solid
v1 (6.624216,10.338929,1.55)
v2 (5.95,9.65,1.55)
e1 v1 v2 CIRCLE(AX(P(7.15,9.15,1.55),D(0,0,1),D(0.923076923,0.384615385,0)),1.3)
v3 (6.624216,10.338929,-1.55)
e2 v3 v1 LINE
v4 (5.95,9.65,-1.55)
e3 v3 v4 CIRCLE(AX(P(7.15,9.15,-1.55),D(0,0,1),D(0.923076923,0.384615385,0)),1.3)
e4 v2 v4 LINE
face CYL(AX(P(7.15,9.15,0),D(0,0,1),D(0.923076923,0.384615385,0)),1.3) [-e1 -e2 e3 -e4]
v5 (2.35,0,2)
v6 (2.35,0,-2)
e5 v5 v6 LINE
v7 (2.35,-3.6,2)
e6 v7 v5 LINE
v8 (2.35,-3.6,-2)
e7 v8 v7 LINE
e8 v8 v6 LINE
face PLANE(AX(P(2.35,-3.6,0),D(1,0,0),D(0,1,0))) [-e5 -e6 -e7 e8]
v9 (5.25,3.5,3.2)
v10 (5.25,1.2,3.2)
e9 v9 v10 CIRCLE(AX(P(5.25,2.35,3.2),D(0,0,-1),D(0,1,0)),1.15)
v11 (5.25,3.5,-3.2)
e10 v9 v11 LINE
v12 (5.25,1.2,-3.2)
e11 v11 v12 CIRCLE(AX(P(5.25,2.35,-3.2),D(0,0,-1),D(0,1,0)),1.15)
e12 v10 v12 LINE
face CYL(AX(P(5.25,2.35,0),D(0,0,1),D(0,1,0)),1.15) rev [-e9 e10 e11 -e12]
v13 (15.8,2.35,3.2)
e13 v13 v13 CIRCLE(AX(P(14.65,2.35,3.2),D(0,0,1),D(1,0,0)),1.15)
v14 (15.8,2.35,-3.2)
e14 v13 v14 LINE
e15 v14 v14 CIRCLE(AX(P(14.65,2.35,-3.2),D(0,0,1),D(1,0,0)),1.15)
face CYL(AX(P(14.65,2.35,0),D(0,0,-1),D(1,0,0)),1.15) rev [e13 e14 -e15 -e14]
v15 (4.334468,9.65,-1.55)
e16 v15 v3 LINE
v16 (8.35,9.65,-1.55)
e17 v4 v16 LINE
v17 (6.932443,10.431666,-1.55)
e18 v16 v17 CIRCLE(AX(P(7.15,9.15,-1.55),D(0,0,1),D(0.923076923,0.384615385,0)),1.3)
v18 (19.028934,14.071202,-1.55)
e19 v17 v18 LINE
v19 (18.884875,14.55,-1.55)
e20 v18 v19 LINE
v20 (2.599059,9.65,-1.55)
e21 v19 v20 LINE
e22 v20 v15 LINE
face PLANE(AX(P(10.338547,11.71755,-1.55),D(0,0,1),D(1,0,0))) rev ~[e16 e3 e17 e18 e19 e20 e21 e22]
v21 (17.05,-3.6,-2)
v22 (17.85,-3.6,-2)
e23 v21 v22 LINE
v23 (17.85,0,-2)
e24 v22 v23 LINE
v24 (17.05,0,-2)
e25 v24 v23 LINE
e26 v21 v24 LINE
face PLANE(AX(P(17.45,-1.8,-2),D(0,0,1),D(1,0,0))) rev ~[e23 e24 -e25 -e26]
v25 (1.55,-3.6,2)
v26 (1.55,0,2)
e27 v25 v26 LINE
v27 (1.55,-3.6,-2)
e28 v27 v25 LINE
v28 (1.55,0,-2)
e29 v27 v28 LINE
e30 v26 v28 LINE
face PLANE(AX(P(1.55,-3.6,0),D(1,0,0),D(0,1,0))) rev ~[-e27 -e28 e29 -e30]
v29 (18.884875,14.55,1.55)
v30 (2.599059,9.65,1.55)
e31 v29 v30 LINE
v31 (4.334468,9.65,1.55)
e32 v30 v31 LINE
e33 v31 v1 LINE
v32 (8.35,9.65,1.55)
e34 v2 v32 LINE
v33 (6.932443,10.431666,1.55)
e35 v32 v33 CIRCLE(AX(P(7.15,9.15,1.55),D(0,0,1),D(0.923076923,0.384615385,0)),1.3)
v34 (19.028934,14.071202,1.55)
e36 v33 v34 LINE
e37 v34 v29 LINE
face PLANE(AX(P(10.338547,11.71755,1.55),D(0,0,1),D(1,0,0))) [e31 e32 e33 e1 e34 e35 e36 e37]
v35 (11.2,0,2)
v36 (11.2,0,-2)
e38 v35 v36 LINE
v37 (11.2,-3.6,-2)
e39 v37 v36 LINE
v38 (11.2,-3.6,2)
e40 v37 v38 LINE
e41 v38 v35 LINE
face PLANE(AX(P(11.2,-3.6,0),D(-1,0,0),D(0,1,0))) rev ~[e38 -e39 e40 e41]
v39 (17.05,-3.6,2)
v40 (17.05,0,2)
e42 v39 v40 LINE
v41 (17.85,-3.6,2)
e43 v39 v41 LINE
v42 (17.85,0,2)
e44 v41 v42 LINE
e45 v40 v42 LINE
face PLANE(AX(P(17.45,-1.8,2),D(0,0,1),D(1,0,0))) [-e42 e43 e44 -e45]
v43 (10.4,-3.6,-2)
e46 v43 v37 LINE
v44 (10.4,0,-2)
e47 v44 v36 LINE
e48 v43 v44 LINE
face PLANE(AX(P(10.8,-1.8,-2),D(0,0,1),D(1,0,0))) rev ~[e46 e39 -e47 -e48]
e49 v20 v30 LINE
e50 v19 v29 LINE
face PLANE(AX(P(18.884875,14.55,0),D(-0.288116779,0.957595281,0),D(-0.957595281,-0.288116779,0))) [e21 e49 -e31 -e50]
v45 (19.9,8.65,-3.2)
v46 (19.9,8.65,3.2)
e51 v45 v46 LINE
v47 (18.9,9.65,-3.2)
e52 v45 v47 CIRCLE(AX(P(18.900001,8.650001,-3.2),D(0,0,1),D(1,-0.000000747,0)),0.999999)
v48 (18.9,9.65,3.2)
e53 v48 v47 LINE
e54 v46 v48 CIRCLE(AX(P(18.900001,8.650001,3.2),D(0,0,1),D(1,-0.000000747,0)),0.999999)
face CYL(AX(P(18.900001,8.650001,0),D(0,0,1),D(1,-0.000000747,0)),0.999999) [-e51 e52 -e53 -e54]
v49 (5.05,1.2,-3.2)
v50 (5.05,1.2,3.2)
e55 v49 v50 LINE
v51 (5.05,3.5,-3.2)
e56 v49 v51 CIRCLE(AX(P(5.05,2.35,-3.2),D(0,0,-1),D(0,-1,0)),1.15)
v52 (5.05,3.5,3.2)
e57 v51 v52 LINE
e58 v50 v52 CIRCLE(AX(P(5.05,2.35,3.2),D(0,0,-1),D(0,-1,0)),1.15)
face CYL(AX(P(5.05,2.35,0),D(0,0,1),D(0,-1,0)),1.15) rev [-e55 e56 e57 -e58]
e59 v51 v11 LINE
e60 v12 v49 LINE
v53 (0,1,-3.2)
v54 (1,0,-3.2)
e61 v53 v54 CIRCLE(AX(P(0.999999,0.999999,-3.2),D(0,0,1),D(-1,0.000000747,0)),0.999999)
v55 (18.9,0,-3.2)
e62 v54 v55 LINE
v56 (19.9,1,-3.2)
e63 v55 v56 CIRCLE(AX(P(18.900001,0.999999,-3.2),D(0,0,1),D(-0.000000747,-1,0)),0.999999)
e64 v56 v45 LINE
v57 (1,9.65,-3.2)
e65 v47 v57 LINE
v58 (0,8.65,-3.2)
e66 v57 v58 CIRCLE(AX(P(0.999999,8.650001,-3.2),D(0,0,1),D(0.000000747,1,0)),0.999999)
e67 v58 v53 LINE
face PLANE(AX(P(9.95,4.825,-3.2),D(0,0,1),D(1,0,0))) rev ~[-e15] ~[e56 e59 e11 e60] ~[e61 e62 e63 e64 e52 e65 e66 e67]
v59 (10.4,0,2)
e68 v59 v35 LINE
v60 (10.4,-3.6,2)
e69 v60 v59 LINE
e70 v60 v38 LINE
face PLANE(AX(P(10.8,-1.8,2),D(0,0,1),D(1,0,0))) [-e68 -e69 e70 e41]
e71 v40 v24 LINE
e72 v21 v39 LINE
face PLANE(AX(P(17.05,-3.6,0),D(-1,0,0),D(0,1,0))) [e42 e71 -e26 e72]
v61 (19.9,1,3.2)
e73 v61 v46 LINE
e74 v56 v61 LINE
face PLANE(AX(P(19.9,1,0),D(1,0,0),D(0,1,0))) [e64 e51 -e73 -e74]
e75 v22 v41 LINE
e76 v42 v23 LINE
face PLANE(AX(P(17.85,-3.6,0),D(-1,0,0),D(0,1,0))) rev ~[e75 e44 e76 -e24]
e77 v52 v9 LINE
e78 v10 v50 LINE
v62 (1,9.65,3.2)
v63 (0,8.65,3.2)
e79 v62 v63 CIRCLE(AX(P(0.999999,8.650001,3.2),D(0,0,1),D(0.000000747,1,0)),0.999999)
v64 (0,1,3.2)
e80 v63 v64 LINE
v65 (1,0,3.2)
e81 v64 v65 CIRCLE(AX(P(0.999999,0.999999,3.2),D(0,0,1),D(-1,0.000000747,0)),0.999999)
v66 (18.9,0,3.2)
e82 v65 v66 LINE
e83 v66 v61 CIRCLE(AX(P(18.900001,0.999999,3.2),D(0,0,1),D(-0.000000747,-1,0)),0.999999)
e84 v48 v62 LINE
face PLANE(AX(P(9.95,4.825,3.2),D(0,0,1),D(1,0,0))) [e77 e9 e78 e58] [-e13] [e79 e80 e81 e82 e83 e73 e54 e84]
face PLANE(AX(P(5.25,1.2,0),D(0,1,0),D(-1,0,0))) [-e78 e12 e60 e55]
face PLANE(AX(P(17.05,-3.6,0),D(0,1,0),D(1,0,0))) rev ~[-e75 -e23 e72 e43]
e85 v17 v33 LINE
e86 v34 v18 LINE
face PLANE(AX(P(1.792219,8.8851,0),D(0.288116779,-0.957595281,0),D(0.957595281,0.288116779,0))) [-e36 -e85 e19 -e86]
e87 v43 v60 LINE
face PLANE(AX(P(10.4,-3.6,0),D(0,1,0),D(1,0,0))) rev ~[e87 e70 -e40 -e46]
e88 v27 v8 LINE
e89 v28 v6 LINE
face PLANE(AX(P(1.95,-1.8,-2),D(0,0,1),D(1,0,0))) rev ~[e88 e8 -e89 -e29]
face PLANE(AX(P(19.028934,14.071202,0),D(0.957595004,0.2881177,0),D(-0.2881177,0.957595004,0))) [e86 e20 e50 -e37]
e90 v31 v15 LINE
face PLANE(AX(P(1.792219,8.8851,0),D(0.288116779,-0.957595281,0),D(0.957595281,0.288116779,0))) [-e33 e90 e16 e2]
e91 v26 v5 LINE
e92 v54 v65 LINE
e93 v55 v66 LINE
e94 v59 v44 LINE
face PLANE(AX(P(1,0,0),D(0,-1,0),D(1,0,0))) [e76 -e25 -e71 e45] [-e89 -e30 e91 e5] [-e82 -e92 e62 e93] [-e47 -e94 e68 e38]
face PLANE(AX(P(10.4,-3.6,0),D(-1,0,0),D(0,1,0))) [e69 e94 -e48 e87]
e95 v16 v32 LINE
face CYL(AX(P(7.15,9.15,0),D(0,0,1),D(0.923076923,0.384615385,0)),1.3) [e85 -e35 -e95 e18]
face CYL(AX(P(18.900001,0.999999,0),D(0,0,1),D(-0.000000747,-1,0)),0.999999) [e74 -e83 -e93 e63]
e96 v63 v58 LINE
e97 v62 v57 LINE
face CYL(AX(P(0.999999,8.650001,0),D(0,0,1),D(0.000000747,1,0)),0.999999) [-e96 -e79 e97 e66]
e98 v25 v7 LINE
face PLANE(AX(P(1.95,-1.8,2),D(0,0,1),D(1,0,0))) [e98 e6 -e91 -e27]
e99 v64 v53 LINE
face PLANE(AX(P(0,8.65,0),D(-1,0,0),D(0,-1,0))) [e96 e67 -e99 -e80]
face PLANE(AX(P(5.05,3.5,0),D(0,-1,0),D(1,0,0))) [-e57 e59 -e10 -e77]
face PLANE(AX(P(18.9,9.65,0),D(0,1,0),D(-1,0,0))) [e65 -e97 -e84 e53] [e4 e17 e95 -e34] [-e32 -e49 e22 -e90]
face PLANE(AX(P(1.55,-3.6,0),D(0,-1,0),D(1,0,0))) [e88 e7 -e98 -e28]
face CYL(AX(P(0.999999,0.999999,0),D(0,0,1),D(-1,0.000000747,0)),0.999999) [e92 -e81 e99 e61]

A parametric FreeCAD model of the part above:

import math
import FreeCAD as App
import Part
import Sketcher
from FreeCAD import Vector
Q = App.Units.Quantity

doc = App.newDocument("Part")
body = doc.addObject("PartDesign::Body", "Body")

# Sketch on XY plane
sketch1 = body.newObject("Sketcher::SketchObject", "Sketch")
sketch1.AttachmentSupport = (doc.getObject("XY_Plane"), [""])
sketch1.MapMode = "FlatFace"
sketch1.addGeometry([
    Part.ArcOfCircle(Part.Circle(Vector(1, 1, 0), Vector(0, 0, 1), 1), math.radians(180), math.radians(270)),  # 0
    Part.LineSegment(Vector(1, 0, 0), Vector(18.9, 0, 0)),  # 1
    Part.ArcOfCircle(Part.Circle(Vector(18.9, 1, 0), Vector(0, 0, 1), 1), math.radians(-90), math.radians(0)),  # 2
    Part.LineSegment(Vector(19.9, 1, 0), Vector(19.9, 8.65, 0)),  # 3
    Part.ArcOfCircle(Part.Circle(Vector(18.9, 8.65, 0), Vector(0, 0, 1), 1), math.radians(0), math.radians(90)),  # 4
    Part.LineSegment(Vector(18.9, 9.65, 0), Vector(1, 9.65, 0)),  # 5
    Part.ArcOfCircle(Part.Circle(Vector(1, 8.65, 0), Vector(0, 0, 1), 1), math.radians(90), math.radians(180)),  # 6
    Part.LineSegment(Vector(0, 8.65, 0), Vector(0, 1, 0)),  # 7
    Part.LineSegment(Vector(5.25, 1.2, 0), Vector(5.05, 1.2, 0)),  # 8
    Part.ArcOfCircle(Part.Circle(Vector(5.05, 2.35, 0), Vector(0, 0, 1), 1.15), math.radians(90), math.radians(270)),  # 9
    Part.LineSegment(Vector(5.05, 3.5, 0), Vector(5.25, 3.5, 0)),  # 10
    Part.ArcOfCircle(Part.Circle(Vector(5.25, 2.35, 0), Vector(0, 0, 1), 1.15), math.radians(-90), math.radians(90)),  # 11
    Part.Circle(Vector(14.65, 2.35, 0), Vector(0, 0, 1), 1.15),  # 12
], False)
sketch1.addConstraint([
    Sketcher.Constraint("Tangent", 0, 2, 1, 1),
    Sketcher.Constraint("Tangent", 1, 2, 2, 1),
    Sketcher.Constraint("Tangent", 2, 2, 3, 1),
    Sketcher.Constraint("Tangent", 3, 2, 4, 1),
    Sketcher.Constraint("Tangent", 4, 2, 5, 1),
    Sketcher.Constraint("Tangent", 5, 2, 6, 1),
    Sketcher.Constraint("Tangent", 6, 2, 7, 1),
    Sketcher.Constraint("Tangent", 7, 2, 0, 1),
    Sketcher.Constraint("Tangent", 8, 2, 9, 2),
    Sketcher.Constraint("Tangent", 9, 1, 10, 1),
    Sketcher.Constraint("Tangent", 10, 2, 11, 2),
    Sketcher.Constraint("Tangent", 11, 1, 8, 1),
    Sketcher.Constraint("Horizontal", 1),
    Sketcher.Constraint("Vertical", 3),
    Sketcher.Constraint("Horizontal", 5),
    Sketcher.Constraint("Vertical", 7),
    Sketcher.Constraint("Horizontal", 8),
    Sketcher.Constraint("Horizontal", 10),
    Sketcher.Constraint("Equal", 0, 2),
    Sketcher.Constraint("Equal", 2, 4),
    Sketcher.Constraint("Equal", 4, 6),
    Sketcher.Constraint("Equal", 11, 12),
    Sketcher.Constraint("PointOnObject", 0, 2, -1),
    Sketcher.Constraint("PointOnObject", 6, 2, -2),
    Sketcher.Constraint("Horizontal", 11, 3, 12, 3),
    Sketcher.Constraint("Radius", 0, Q("0.999999 mm")),
    Sketcher.Constraint("Diameter", 12, Q("2.3 mm")),
    Sketcher.Constraint("DistanceX", 1, 1, 1, 2, Q("17.9 mm")),
    Sketcher.Constraint("DistanceX", 8, 2, 8, 1, Q("0.2 mm")),
    Sketcher.Constraint("DistanceY", 3, 1, 3, 2, Q("7.65 mm")),
    Sketcher.Constraint("DistanceY", -1, 1, 8, 2, Q("1.2 mm")),
    Sketcher.Constraint("DistanceX", 11, 3, 12, 3, Q("9.4 mm")),
    Sketcher.Constraint("DistanceX", -1, 1, 9, 3, Q("5.05 mm")),
])
pad1 = body.newObject("PartDesign::Pad", "Pad")
pad1.Profile = sketch1
pad1.Length = 6.4
pad1.Midplane = True

# Sketch on XY plane
sketch2 = body.newObject("Sketcher::SketchObject", "Sketch001")
sketch2.AttachmentSupport = (doc.getObject("XY_Plane"), [""])
sketch2.MapMode = "FlatFace"
sketch2.addGeometry([
    Part.LineSegment(Vector(6, 9.7, 0), Vector(8.3, 9.7, 0)),
    Part.ArcOfCircle(Part.Circle(Vector(7.2, 9.2, 0), Vector(0, 0, 1), 1.3), math.radians(23), math.radians(157)),
], False)
sketch2.addConstraint([
    Sketcher.Constraint("Coincident", 0, 1, 1, 2),
    Sketcher.Constraint("Coincident", 1, 1, 0, 2),
    Sketcher.Constraint("Horizontal", 0),
    Sketcher.Constraint("Radius", 1, Q("1.3 mm")),
    Sketcher.Constraint("DistanceX", 0, 1, 0, 2, Q("2.4 mm")),
    Sketcher.Constraint("DistanceX", -1, 1, 1, 3, Q("7.15 mm")),
    Sketcher.Constraint("DistanceY", -1, 1, 1, 3, Q("9.15 mm")),
])
pad2 = body.newObject("PartDesign::Pad", "Pad001")
pad2.Profile = sketch2
pad2.Length = 3.1
pad2.Midplane = True

# Sketch on XY plane
sketch3 = body.newObject("Sketcher::SketchObject", "Sketch002")
sketch3.AttachmentSupport = (doc.getObject("XY_Plane"), [""])
sketch3.MapMode = "FlatFace"
sketch3.addGeometry([
    Part.LineSegment(Vector(17.1, 0, 0), Vector(17.1, -3.6, 0)),  # 0
    Part.LineSegment(Vector(17.1, -3.6, 0), Vector(17.9, -3.6, 0)),  # 1
    Part.LineSegment(Vector(17.9, -3.6, 0), Vector(17.9, 0, 0)),  # 2
    Part.LineSegment(Vector(17.9, 0, 0), Vector(17.1, 0, 0)),  # 3
    Part.LineSegment(Vector(10.4, 0, 0), Vector(10.4, -3.6, 0)),  # 4
    Part.LineSegment(Vector(10.4, -3.6, 0), Vector(11.2, -3.6, 0)),  # 5
    Part.LineSegment(Vector(11.2, -3.6, 0), Vector(11.2, 0, 0)),  # 6
    Part.LineSegment(Vector(11.2, 0, 0), Vector(10.4, 0, 0)),  # 7
    Part.LineSegment(Vector(1.6, 0, 0), Vector(1.6, -3.6, 0)),  # 8
    Part.LineSegment(Vector(1.6, -3.6, 0), Vector(2.4, -3.6, 0)),  # 9
    Part.LineSegment(Vector(2.4, -3.6, 0), Vector(2.4, 0, 0)),  # 10
    Part.LineSegment(Vector(2.4, 0, 0), Vector(1.6, 0, 0)),  # 11
], False)
sketch3.addConstraint([
    Sketcher.Constraint("Coincident", 0, 2, 1, 1),
    Sketcher.Constraint("Coincident", 1, 2, 2, 1),
    Sketcher.Constraint("Coincident", 2, 2, 3, 1),
    Sketcher.Constraint("Coincident", 3, 2, 0, 1),
    Sketcher.Constraint("Coincident", 4, 2, 5, 1),
    Sketcher.Constraint("Coincident", 5, 2, 6, 1),
    Sketcher.Constraint("Coincident", 6, 2, 7, 1),
    Sketcher.Constraint("Coincident", 7, 2, 4, 1),
    Sketcher.Constraint("Coincident", 8, 2, 9, 1),
    Sketcher.Constraint("Coincident", 9, 2, 10, 1),
    Sketcher.Constraint("Coincident", 10, 2, 11, 1),
    Sketcher.Constraint("Coincident", 11, 2, 8, 1),
    Sketcher.Constraint("Vertical", 0),
    Sketcher.Constraint("Horizontal", 1),
    Sketcher.Constraint("Vertical", 2),
    Sketcher.Constraint("Horizontal", 3),
    Sketcher.Constraint("Vertical", 4),
    Sketcher.Constraint("Horizontal", 5),
    Sketcher.Constraint("Vertical", 6),
    Sketcher.Constraint("Horizontal", 7),
    Sketcher.Constraint("Vertical", 8),
    Sketcher.Constraint("Horizontal", 9),
    Sketcher.Constraint("Vertical", 10),
    Sketcher.Constraint("Horizontal", 11),
    Sketcher.Constraint("PointOnObject", 2, 2, -1),
    Sketcher.Constraint("PointOnObject", 6, 2, -1),
    Sketcher.Constraint("PointOnObject", 10, 2, -1),
    Sketcher.Constraint("Horizontal", 1, 2, 4, 2),
    Sketcher.Constraint("Horizontal", 5, 2, 8, 2),
    Sketcher.Constraint("Equal", 3, 5),
    Sketcher.Constraint("Equal", 7, 9),
    Sketcher.Constraint("DistanceX", 1, 1, 1, 2, Q("0.8 mm")),
    Sketcher.Constraint("DistanceY", 0, 2, 0, 1, Q("3.6 mm")),
    Sketcher.Constraint("DistanceX", -1, 1, 4, 2, Q("10.4 mm")),
    Sketcher.Constraint("DistanceX", 8, 2, 0, 2, Q("15.5 mm")),
    Sketcher.Constraint("DistanceX", -1, 1, 0, 2, Q("17.05 mm")),
])
pad3 = body.newObject("PartDesign::Pad", "Pad002")
pad3.Profile = sketch3
pad3.Length = 4
pad3.Midplane = True

# Sketch on XY plane
sketch4 = body.newObject("Sketcher::SketchObject", "Sketch003")
sketch4.AttachmentSupport = (doc.getObject("XY_Plane"), [""])
sketch4.MapMode = "FlatFace"
sketch4.addGeometry([
    Part.LineSegment(Vector(19, 14.1, 0), Vector(18.9, 14.6, 0)),
    Part.LineSegment(Vector(18.9, 14.6, 0), Vector(1.6, 9.4, 0)),
    Part.LineSegment(Vector(1.6, 9.4, 0), Vector(1.8, 8.9, 0)),
    Part.LineSegment(Vector(1.8, 8.9, 0), Vector(19, 14.1, 0)),
], False)
sketch4.addConstraint([
    Sketcher.Constraint("Coincident", 0, 2, 1, 1),
    Sketcher.Constraint("Coincident", 1, 2, 2, 1),
    Sketcher.Constraint("Coincident", 2, 2, 3, 1),
    Sketcher.Constraint("Coincident", 3, 2, 0, 1),
    Sketcher.Constraint("Perpendicular", 0, 1),
    Sketcher.Constraint("Perpendicular", 1, 2),
    Sketcher.Constraint("Perpendicular", 2, 3),
    Sketcher.Constraint("Distance", 1, Q("18 mm")),
    Sketcher.Constraint("Distance", 0, Q("0.500001 mm")),
    Sketcher.Constraint("DistanceY", -1, 1, 0, 2, Q("14.55 mm")),
    Sketcher.Constraint("DistanceY", -1, 1, 1, 2, Q("9.363898 mm")),
    Sketcher.Constraint("DistanceX", -1, 1, 1, 2, Q("1.64816 mm")),
])
pad4 = body.newObject("PartDesign::Pad", "Pad003")
pad4.Profile = sketch4
pad4.Length = 3.1
pad4.Midplane = True

doc.recompute()
